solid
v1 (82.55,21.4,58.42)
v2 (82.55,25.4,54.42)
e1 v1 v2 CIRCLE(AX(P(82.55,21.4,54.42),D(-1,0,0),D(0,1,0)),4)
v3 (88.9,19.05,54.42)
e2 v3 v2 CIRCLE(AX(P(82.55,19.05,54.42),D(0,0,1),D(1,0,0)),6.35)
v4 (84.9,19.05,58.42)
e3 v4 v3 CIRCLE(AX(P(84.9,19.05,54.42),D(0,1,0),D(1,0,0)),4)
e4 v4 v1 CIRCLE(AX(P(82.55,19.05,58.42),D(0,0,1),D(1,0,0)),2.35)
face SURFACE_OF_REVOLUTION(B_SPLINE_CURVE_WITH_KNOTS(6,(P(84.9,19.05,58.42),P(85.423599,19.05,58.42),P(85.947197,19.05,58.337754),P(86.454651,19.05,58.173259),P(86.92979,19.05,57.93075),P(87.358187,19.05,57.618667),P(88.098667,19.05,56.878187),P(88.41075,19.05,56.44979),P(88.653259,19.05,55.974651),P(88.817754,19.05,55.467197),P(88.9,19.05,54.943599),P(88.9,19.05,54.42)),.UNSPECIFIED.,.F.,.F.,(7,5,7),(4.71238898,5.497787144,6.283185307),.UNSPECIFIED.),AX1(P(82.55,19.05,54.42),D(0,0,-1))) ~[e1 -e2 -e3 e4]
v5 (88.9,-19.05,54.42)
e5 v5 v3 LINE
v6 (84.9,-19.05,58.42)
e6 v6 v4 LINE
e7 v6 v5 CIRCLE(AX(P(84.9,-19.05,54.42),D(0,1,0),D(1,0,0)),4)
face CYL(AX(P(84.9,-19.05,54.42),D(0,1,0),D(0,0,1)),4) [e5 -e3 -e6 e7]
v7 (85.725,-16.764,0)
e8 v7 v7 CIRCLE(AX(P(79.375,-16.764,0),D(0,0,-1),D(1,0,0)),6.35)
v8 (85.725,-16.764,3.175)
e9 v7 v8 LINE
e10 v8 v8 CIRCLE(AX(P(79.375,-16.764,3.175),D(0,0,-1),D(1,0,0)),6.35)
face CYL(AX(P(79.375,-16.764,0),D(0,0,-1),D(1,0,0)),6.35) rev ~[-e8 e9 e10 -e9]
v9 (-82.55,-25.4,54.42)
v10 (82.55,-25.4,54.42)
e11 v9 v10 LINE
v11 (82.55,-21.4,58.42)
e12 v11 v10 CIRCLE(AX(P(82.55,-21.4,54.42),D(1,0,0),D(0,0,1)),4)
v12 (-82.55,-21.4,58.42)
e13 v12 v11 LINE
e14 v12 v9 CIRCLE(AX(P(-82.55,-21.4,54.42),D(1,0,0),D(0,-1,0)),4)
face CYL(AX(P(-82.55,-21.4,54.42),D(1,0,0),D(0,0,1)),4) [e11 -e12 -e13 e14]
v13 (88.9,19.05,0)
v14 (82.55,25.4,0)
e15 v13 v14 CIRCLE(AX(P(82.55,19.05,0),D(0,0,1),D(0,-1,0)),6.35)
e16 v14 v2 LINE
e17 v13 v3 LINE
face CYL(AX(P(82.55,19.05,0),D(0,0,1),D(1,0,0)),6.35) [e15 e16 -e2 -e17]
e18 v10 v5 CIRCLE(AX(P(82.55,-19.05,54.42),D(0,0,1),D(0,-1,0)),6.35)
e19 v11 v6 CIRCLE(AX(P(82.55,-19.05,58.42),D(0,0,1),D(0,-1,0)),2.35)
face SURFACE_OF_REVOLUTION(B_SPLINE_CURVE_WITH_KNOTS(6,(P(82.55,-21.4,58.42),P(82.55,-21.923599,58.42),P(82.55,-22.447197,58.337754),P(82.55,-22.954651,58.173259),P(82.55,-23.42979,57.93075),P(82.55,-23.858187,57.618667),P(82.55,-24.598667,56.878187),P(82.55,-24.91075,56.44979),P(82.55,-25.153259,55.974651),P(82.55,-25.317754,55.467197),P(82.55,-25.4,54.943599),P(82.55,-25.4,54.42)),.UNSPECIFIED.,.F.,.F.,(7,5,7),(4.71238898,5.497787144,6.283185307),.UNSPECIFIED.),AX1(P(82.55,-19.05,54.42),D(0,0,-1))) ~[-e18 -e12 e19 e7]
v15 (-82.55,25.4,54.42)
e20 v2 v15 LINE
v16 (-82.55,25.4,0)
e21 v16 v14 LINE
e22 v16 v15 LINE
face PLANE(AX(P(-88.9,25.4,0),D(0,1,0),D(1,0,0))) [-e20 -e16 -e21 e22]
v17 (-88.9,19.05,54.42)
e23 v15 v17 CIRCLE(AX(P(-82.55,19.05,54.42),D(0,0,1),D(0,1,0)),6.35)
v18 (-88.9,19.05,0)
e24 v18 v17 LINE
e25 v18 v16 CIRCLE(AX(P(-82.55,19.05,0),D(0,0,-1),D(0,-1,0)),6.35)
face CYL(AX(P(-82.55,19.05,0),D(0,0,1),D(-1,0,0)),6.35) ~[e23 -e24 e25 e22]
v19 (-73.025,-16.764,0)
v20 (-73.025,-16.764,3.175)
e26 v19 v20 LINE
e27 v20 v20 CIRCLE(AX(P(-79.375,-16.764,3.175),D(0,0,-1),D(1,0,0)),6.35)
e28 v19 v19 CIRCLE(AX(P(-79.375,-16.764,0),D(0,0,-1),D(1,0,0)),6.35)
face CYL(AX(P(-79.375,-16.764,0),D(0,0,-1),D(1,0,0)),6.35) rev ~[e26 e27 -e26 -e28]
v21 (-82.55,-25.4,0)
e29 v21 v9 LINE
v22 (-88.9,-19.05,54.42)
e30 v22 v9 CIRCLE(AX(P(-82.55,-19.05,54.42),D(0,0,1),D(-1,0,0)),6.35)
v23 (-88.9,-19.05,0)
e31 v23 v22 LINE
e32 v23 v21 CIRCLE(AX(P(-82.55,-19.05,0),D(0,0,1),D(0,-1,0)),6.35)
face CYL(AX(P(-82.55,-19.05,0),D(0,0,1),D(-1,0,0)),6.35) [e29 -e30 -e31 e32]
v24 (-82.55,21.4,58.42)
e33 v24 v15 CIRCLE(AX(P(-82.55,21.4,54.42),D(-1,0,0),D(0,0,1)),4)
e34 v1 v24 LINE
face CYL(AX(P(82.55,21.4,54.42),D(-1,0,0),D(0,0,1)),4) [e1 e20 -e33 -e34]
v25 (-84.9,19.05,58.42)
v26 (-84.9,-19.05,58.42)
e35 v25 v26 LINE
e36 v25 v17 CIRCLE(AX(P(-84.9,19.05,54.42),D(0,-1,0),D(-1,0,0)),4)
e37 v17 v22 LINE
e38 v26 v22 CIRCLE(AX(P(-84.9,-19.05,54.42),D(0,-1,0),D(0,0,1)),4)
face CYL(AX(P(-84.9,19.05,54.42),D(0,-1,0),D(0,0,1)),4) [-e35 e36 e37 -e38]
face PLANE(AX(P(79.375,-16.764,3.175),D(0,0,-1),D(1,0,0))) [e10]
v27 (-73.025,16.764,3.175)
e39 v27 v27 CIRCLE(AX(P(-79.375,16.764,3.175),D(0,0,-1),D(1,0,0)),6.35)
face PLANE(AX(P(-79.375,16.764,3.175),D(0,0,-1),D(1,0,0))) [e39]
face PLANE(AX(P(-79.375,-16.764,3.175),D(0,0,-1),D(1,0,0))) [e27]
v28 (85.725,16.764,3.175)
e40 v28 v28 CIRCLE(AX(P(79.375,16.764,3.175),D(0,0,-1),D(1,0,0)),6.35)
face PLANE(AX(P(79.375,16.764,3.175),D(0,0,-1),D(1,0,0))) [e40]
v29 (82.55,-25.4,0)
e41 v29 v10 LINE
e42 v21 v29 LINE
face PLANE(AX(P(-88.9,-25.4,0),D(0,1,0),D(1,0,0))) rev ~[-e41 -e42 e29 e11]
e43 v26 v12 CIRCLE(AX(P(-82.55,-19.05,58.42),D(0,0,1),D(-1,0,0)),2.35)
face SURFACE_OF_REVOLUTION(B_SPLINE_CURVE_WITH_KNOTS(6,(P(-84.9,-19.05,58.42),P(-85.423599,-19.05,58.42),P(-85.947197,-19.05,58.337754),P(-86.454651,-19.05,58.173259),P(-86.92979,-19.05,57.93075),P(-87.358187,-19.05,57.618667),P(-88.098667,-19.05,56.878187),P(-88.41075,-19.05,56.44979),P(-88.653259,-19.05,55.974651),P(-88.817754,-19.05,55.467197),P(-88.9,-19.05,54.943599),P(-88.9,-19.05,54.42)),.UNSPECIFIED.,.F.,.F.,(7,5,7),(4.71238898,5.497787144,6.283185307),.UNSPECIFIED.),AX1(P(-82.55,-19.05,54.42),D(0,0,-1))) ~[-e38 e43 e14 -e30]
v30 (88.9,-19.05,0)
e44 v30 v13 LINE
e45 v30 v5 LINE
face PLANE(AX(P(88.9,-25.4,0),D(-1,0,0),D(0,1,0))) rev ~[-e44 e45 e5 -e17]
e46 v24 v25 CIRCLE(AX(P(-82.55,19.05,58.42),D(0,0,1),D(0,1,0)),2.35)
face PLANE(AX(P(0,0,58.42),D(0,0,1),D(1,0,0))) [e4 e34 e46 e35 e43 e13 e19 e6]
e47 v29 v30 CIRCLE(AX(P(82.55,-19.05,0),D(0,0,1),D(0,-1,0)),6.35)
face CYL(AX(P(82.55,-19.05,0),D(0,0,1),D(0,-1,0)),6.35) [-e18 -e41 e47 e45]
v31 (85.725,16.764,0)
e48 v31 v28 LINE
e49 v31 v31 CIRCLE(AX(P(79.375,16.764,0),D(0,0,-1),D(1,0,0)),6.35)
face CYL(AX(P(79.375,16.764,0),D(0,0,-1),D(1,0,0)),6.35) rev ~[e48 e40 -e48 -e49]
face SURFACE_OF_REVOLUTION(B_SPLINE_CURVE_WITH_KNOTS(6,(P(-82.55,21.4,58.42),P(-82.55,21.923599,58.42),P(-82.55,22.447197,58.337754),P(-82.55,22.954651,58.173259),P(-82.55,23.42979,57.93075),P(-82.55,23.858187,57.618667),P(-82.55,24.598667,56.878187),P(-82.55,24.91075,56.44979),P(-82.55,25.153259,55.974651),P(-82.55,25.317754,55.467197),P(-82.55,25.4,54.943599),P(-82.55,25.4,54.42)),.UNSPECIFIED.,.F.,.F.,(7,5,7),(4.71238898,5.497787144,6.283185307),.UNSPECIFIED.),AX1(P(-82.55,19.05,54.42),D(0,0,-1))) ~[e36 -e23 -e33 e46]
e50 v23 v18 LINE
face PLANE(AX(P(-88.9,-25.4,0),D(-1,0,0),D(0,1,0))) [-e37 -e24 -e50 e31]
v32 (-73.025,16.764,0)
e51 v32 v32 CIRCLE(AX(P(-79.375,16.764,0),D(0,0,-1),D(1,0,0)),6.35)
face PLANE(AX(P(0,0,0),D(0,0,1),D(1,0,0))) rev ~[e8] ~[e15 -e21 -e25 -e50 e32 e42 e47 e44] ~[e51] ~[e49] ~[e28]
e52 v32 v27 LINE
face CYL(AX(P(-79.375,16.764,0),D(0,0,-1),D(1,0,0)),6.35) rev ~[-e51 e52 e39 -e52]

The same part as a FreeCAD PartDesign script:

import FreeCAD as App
import Part
import Sketcher
Q = App.Units.Quantity


def edges_at(feature, points):
    """Names of the edges that pass closest to the given points."""
    edges = feature.Shape.Edges
    near = lambda p: min(range(len(edges)), key=lambda i: edges[i].distToShape(Part.Vertex(*p))[0])
    return sorted({f"Edge{near(p) + 1}" for p in points})

doc = App.newDocument("Part")
body = doc.addObject("PartDesign::Body", "Body")

# Sketch on XY plane
sketch1 = body.newObject("Sketcher::SketchObject", "Sketch")
sketch1.AttachmentSupport = (doc.getObject("XY_Plane"), [""])
sketch1.MapMode = "FlatFace"
sketch1.addGeometry([
    Part.LineSegment(App.Vector(-89, 25, 0), App.Vector(-89, -25, 0)),
    Part.LineSegment(App.Vector(-89, -25, 0), App.Vector(89, -25, 0)),
    Part.LineSegment(App.Vector(89, -25, 0), App.Vector(89, 25, 0)),
    Part.LineSegment(App.Vector(89, 25, 0), App.Vector(-89, 25, 0)),
], False)
sketch1.addConstraint([
    Sketcher.Constraint("Coincident", 0, 2, 1, 1),
    Sketcher.Constraint("Coincident", 1, 2, 2, 1),
    Sketcher.Constraint("Coincident", 2, 2, 3, 1),
    Sketcher.Constraint("Coincident", 3, 2, 0, 1),
    Sketcher.Constraint("Vertical", 0),
    Sketcher.Constraint("Horizontal", 1),
    Sketcher.Constraint("Vertical", 2),
    Sketcher.Constraint("Horizontal", 3),
    Sketcher.Constraint("Symmetric", 0, 2, 2, 2, -1, 1),
    Sketcher.Constraint("DistanceX", 1, 1, 1, 2, Q("7 in")),
    Sketcher.Constraint("DistanceY", 0, 2, 0, 1, Q("2 in")),
])
pad1 = body.newObject("PartDesign::Pad", "Pad")
pad1.Profile = sketch1
pad1.Length = Q("2.3 in")
doc.recompute()

fillet = body.newObject("PartDesign::Fillet", "Fillet")
fillet.Base = (pad1, edges_at(pad1, [
    (-88.9, 25.4, 29.21),
    (88.9, 25.4, 29.21),
    (88.9, -25.4, 29.21),
    (-88.9, -25.4, 29.21),
]))
fillet.Radius = Q("0.25 in")

# Sketch on XY plane
sketch2 = body.newObject("Sketcher::SketchObject", "Sketch001")
sketch2.AttachmentSupport = (doc.getObject("XY_Plane"), [""])
sketch2.MapMode = "FlatFace"
sketch2.addGeometry([
    Part.Circle(App.Vector(79, -17, 0), App.Vector(0, 0, 1), 6),
    Part.Circle(App.Vector(79, 17, 0), App.Vector(0, 0, 1), 6),
    Part.Circle(App.Vector(-79, -17, 0), App.Vector(0, 0, 1), 6),
    Part.Circle(App.Vector(-79, 17, 0), App.Vector(0, 0, 1), 6),
], False)
sketch2.addConstraint([
    Sketcher.Constraint("Equal", 0, 1),
    Sketcher.Constraint("Equal", 1, 2),
    Sketcher.Constraint("Equal", 2, 3),
    Sketcher.Constraint("Symmetric", 1, 3, 2, 3, -1, 1),
    Sketcher.Constraint("Symmetric", 0, 3, 3, 3, -1, 1),
    Sketcher.Constraint("Symmetric", 0, 3, 2, 3, -2),
    Sketcher.Constraint("Diameter", 0, Q("0.5 in")),
    Sketcher.Constraint("DistanceY", 0, 3, -1, 1, Q("0.66 in")),
    Sketcher.Constraint("DistanceX", 2, 3, 0, 3, Q("6.25 in")),
])
pocket1 = body.newObject("PartDesign::Pocket", "Pocket")
pocket1.Profile = sketch2
pocket1.Length = Q("0.125 in")
pocket1.Reversed = True
doc.recompute()

fillet2 = body.newObject("PartDesign::Fillet", "Fillet001")
fillet2.Base = (pocket1, edges_at(pocket1, [
    (87.04, 23.54, 58.42),
    (88.9, 0, 58.42),
    (87.04, -23.54, 58.42),
    (0, -25.4, 58.42),
    (0, 25.4, 58.42),
    (-88.9, 0, 58.42),
    (-87.04, 23.54, 58.42),
    (-87.04, -23.54, 58.42),
]))
fillet2.Radius = 4

doc.recompute()
